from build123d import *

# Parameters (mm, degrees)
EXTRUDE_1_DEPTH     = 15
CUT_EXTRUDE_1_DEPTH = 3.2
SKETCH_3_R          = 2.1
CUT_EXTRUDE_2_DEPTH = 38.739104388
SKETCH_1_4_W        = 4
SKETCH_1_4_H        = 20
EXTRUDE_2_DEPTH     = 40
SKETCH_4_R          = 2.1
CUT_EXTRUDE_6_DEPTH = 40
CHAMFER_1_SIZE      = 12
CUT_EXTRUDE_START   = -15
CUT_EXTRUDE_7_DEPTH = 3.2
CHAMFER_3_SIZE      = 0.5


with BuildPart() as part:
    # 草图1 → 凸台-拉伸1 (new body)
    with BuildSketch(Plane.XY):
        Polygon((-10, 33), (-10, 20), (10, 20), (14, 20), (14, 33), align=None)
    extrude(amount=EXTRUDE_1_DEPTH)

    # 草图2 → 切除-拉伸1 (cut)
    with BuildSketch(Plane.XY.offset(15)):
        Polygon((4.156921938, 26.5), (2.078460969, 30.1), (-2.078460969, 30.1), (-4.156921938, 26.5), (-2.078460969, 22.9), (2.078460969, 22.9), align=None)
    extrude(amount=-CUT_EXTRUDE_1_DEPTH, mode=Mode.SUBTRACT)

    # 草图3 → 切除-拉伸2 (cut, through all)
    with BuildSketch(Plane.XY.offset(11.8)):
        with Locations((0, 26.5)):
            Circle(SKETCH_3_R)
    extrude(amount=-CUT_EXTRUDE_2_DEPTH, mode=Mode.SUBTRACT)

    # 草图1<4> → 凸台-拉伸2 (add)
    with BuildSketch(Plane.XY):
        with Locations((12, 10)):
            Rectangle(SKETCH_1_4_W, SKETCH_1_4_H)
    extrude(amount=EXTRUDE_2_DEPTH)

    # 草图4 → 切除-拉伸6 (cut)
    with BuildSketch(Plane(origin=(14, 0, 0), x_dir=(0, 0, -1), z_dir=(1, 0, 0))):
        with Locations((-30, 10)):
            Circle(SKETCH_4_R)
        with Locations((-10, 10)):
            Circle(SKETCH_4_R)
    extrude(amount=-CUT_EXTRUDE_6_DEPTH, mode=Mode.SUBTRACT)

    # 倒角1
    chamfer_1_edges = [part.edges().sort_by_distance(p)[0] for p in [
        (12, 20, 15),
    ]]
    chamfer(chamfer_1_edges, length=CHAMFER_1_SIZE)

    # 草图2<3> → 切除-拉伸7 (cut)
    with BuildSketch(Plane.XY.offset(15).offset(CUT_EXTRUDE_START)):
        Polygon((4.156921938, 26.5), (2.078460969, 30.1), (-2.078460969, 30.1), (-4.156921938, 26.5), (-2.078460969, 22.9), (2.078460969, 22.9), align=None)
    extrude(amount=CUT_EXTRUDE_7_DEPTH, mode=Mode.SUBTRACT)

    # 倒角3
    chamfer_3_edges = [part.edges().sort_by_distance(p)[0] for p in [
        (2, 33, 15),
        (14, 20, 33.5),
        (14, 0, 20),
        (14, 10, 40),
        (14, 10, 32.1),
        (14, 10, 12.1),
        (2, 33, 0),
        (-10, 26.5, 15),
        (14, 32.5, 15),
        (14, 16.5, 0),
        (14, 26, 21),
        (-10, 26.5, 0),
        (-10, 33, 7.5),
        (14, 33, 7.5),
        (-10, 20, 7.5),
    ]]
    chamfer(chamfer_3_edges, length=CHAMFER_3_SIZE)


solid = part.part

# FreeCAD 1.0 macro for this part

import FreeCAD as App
import Part
import Sketcher

V = App.Vector
Q = App.Units.Quantity


def edges_at(feature, points):
    """Names of the edges that pass closest to the given points."""
    edges = feature.Shape.Edges
    near = lambda p: min(range(len(edges)), key=lambda i: edges[i].distToShape(Part.Vertex(*p))[0])
    return sorted({f"Edge{near(p) + 1}" for p in points})


def add_polygon(sketch, points):
    """Adds a closed chain of lines whose ends are joined by coincident constraints."""
    first, n = sketch.GeometryCount, len(points)
    for a, b in zip(points, points[1:] + points[:1]):
        sketch.addGeometry(Part.LineSegment(App.Vector(*a, 0), App.Vector(*b, 0)), False)
    for i in range(n):
        sketch.addConstraint(Sketcher.Constraint("Coincident", first + i, 2, first + (i + 1) % n, 1))

doc = App.newDocument("Part")
body = doc.addObject("PartDesign::Body", "Body")

# Sketch on XY plane
sketch1 = doc.addObject("Sketcher::SketchObject", "Sketch")
body.addObject(sketch1)
sketch1.AttachmentSupport = (doc.XY_Plane, [""])
sketch1.MapMode = "FlatFace"
add_polygon(sketch1, [(-10, 33), (-10, 20), (14, 20), (14, 33)])  # lines 0-3
sketch1.addConstraint([
    Sketcher.Constraint("Vertical", 0),
    Sketcher.Constraint("Horizontal", 1),
    Sketcher.Constraint("Vertical", 2),
    Sketcher.Constraint("Horizontal", 3),
    Sketcher.Constraint("DistanceX", 1, 1, 1, 2, Q("24 mm")),
    Sketcher.Constraint("DistanceY", 0, 2, 0, 1, Q("13 mm")),
    Sketcher.Constraint("DistanceX", 0, 2, -1, 1, Q("10 mm")),
    Sketcher.Constraint("DistanceY", -1, 1, 0, 2, Q("20 mm")),
])
pad1 = doc.addObject("PartDesign::Pad", "Pad")
body.addObject(pad1)
pad1.Profile = sketch1
pad1.Length = 15

# Sketch on XY plane
sketch2 = doc.addObject("Sketcher::SketchObject", "Sketch001")
body.addObject(sketch2)
sketch2.AttachmentSupport = (doc.XY_Plane, [""])
sketch2.MapMode = "FlatFace"
sketch2.AttachmentOffset = App.Placement(V(0, 0, 15), App.Rotation())
add_polygon(sketch2, [(4.2, 26.5), (2.1, 30.1), (-2.1, 30.1), (-4.2, 26.5), (-2.1, 22.9), (2.1, 22.9)])  # lines 0-5
sketch2.addConstraint([
    Sketcher.Constraint("Horizontal", 1),
    Sketcher.Constraint("Horizontal", 4),
    Sketcher.Constraint("Symmetric", 2, 2, 5, 2, -2),
    Sketcher.Constraint("Parallel", 0, 3),
    Sketcher.Constraint("Parallel", 2, 5),
    Sketcher.Constraint("Vertical", 1, 2, 3, 2),
    Sketcher.Constraint("Vertical", 0, 2, 4, 2),
    Sketcher.Constraint("Angle", 0, Q("120 deg")),
    Sketcher.Constraint("DistanceY", -1, 1, 0, 2, Q("30.1 mm")),
    Sketcher.Constraint("DistanceY", -1, 1, 2, 2, Q("26.5 mm")),
    Sketcher.Constraint("DistanceX", 1, 2, 1, 1, Q("4.156922 mm")),
])
pocket1 = doc.addObject("PartDesign::Pocket", "Pocket")
body.addObject(pocket1)
pocket1.Profile = sketch2
pocket1.Length = 3.2

# Sketch on XY plane
sketch3 = doc.addObject("Sketcher::SketchObject", "Sketch002")
body.addObject(sketch3)
sketch3.AttachmentSupport = (doc.XY_Plane, [""])
sketch3.MapMode = "FlatFace"
sketch3.AttachmentOffset = App.Placement(V(0, 0, 11.8), App.Rotation())
sketch3.addGeometry(Part.Circle(V(0, 26.5, 0), V(0, 0, 1), 2.1), False)
sketch3.addConstraint([
    Sketcher.Constraint("PointOnObject", 0, 3, -2),
    Sketcher.Constraint("Diameter", 0, Q("4.2 mm")),
    Sketcher.Constraint("DistanceY", -1, 1, 0, 3, Q("26.5 mm")),
])
pocket2 = doc.addObject("PartDesign::Pocket", "Pocket001")
body.addObject(pocket2)
pocket2.Profile = sketch3
pocket2.Type = "ThroughAll"

# Sketch on XY plane
sketch4 = doc.addObject("Sketcher::SketchObject", "Sketch003")
body.addObject(sketch4)
sketch4.AttachmentSupport = (doc.XY_Plane, [""])
sketch4.MapMode = "FlatFace"
add_polygon(sketch4, [(10, 20), (10, 0), (14, 0), (14, 20)])  # lines 0-3
sketch4.addConstraint([
    Sketcher.Constraint("Vertical", 0),
    Sketcher.Constraint("Horizontal", 1),
    Sketcher.Constraint("Vertical", 2),
    Sketcher.Constraint("Horizontal", 3),
    Sketcher.Constraint("PointOnObject", 0, 2, -1),
    Sketcher.Constraint("DistanceX", 1, 1, 1, 2, Q("4 mm")),
    Sketcher.Constraint("DistanceY", 0, 2, 0, 1, Q("20 mm")),
    Sketcher.Constraint("DistanceX", -1, 1, 0, 2, Q("10 mm")),
])
pad2 = doc.addObject("PartDesign::Pad", "Pad001")
body.addObject(pad2)
pad2.Profile = sketch4
pad2.Length = 40

# Sketch on YZ plane
sketch5 = doc.addObject("Sketcher::SketchObject", "Sketch004")
body.addObject(sketch5)
sketch5.AttachmentSupport = (doc.YZ_Plane, [""])
sketch5.MapMode = "FlatFace"
sketch5.AttachmentOffset = App.Placement(V(0, 0, 14), App.Rotation())
sketch5.addGeometry([
    Part.Circle(V(10, 30, 0), V(0, 0, 1), 2.1),
    Part.Circle(V(10, 10, 0), V(0, 0, 1), 2.1),
], False)
sketch5.addConstraint([
    Sketcher.Constraint("Equal", 0, 1),
    Sketcher.Constraint("Vertical", 0, 3, 1, 3),
    Sketcher.Constraint("Diameter", 0, Q("4.2 mm")),
    Sketcher.Constraint("DistanceX", -1, 1, 0, 3, Q("10 mm")),
    Sketcher.Constraint("DistanceY", -1, 1, 0, 3, Q("30 mm")),
    Sketcher.Constraint("DistanceY", -1, 1, 1, 3, Q("10 mm")),
])
pocket3 = doc.addObject("PartDesign::Pocket", "Pocket002")
body.addObject(pocket3)
pocket3.Profile = sketch5
pocket3.Length = 40
doc.recompute()

chamfer = doc.addObject("PartDesign::Chamfer", "Chamfer")
body.addObject(chamfer)
chamfer.Base = (pocket3, edges_at(pocket3, [(12, 20, 15)]))
chamfer.Size = 12

# Sketch on XY plane
sketch6 = doc.addObject("Sketcher::SketchObject", "Sketch005")
body.addObject(sketch6)
sketch6.AttachmentSupport = (doc.XY_Plane, [""])
sketch6.MapMode = "FlatFace"
add_polygon(sketch6, [(4.2, 26.5), (2.1, 30.1), (-2.1, 30.1), (-4.2, 26.5), (-2.1, 22.9), (2.1, 22.9)])  # lines 0-5
sketch6.addConstraint([
    Sketcher.Constraint("Horizontal", 1),
    Sketcher.Constraint("Horizontal", 4),
    Sketcher.Constraint("Symmetric", 2, 2, 5, 2, -2),
    Sketcher.Constraint("Parallel", 0, 3),
    Sketcher.Constraint("Parallel", 2, 5),
    Sketcher.Constraint("Vertical", 1, 2, 3, 2),
    Sketcher.Constraint("Vertical", 0, 2, 4, 2),
    Sketcher.Constraint("Angle", 0, Q("120 deg")),
    Sketcher.Constraint("DistanceY", -1, 1, 0, 2, Q("30.1 mm")),
    Sketcher.Constraint("DistanceY", -1, 1, 2, 2, Q("26.5 mm")),
    Sketcher.Constraint("DistanceX", 1, 2, 1, 1, Q("4.156922 mm")),
])
pocket4 = doc.addObject("PartDesign::Pocket", "Pocket003")
body.addObject(pocket4)
pocket4.Profile = sketch6
pocket4.Length = 3.2
pocket4.Reversed = True
doc.recompute()

chamfer2 = doc.addObject("PartDesign::Chamfer", "Chamfer001")
body.addObject(chamfer2)
chamfer2.Base = (pocket4, edges_at(pocket4, [
    (2, 33, 15),
    (14, 20, 33.5),
    (14, 0, 20),
    (14, 10, 40),
    (14, 10, 32.1),
    (14, 10, 12.1),
    (2, 33, 0),
    (-10, 26.5, 15),
    (14, 32.5, 15),
    (14, 16.5, 0),
    (14, 26, 21),
    (-10, 26.5, 0),
    (-10, 33, 7.5),
    (14, 33, 7.5),
    (-10, 20, 7.5),
]))
chamfer2.Size = 0.5

doc.recompute()
